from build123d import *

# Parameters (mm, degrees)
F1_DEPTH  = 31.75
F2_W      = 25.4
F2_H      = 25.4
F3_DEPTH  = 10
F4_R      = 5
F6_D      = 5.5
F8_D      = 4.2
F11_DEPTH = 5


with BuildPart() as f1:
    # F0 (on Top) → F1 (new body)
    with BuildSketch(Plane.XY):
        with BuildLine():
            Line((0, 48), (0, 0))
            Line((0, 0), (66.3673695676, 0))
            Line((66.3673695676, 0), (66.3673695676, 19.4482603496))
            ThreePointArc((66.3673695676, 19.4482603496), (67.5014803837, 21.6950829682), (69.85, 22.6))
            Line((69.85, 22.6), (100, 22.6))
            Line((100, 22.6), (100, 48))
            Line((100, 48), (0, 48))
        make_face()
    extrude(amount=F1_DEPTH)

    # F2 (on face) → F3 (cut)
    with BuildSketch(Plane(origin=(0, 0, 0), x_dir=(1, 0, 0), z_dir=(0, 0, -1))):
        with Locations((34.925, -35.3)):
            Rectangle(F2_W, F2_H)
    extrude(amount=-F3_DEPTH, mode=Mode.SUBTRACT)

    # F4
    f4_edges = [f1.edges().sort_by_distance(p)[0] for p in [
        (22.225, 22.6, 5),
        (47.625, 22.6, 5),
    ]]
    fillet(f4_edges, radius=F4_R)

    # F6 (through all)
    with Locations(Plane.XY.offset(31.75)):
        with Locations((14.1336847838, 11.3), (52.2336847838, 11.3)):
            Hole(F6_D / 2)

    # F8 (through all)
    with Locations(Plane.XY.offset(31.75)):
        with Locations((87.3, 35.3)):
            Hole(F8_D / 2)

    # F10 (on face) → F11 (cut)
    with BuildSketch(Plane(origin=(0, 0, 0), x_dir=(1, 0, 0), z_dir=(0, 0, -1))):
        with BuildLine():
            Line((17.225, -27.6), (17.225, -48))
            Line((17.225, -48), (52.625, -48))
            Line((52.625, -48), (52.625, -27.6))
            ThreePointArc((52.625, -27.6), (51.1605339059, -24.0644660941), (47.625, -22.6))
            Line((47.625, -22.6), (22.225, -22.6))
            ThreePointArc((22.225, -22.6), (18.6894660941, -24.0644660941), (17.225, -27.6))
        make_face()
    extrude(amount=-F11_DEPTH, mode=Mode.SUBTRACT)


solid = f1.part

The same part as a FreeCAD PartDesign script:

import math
import FreeCAD as App
import Part
import Sketcher
from FreeCAD import Vector


def edges_at(feature, points):
    """Names of the edges that pass closest to the given points."""
    edges = feature.Shape.Edges
    near = lambda p: min(range(len(edges)), key=lambda i: edges[i].distToShape(Part.Vertex(*p))[0])
    return sorted({f"Edge{near(p) + 1}" for p in points})

doc = App.newDocument("Part")
body = doc.addObject("PartDesign::Body", "Body")

sketch1 = body.newObject("Sketcher::SketchObject", "Sketch")
sketch1.AttachmentSupport = (doc.getObject("XY_Plane"), [""])
sketch1.MapMode = "FlatFace"
sketch1.addGeometry(Part.LineSegment(Vector(0, 48, 0), Vector(0, 0, 0)), False)
sketch1.addGeometry(Part.LineSegment(Vector(0, 0, 0), Vector(66.36737, 0, 0)), False)
sketch1.addGeometry(Part.LineSegment(Vector(66.36737, 0, 0), Vector(66.36737, 19.44826, 0)), False)
sketch1.addGeometry(Part.ArcOfCircle(Part.Circle(Vector(69.85, 19.1, 0), Vector(0, 0, 1), 3.5), math.radians(90), math.radians(174.289451)), False)
sketch1.addGeometry(Part.LineSegment(Vector(69.85, 22.6, 0), Vector(100, 22.6, 0)), False)
sketch1.addGeometry(Part.LineSegment(Vector(100, 22.6, 0), Vector(100, 48, 0)), False)
sketch1.addGeometry(Part.LineSegment(Vector(100, 48, 0), Vector(0, 48, 0)), False)
sketch1.addConstraint(Sketcher.Constraint("Coincident", 0, 2, 1, 1))
sketch1.addConstraint(Sketcher.Constraint("Coincident", 1, 2, 2, 1))
sketch1.addConstraint(Sketcher.Constraint("Coincident", 2, 2, 3, 2))
sketch1.addConstraint(Sketcher.Constraint("Tangent", 3, 1, 4, 1))
sketch1.addConstraint(Sketcher.Constraint("Coincident", 4, 2, 5, 1))
sketch1.addConstraint(Sketcher.Constraint("Coincident", 5, 2, 6, 1))
sketch1.addConstraint(Sketcher.Constraint("Coincident", 6, 2, 0, 1))
sketch1.addConstraint(Sketcher.Constraint("Vertical", 0))
sketch1.addConstraint(Sketcher.Constraint("Horizontal", 1))
sketch1.addConstraint(Sketcher.Constraint("Vertical", 2))
sketch1.addConstraint(Sketcher.Constraint("Horizontal", 4))
sketch1.addConstraint(Sketcher.Constraint("Vertical", 5))
sketch1.addConstraint(Sketcher.Constraint("Horizontal", 6))
sketch1.addConstraint(Sketcher.Constraint("Coincident", 0, 2, -1, 1))
sketch1.addConstraint(Sketcher.Constraint("Radius", 3, 3.5))
sketch1.addConstraint(Sketcher.Constraint("DistanceX", 6, 2, 6, 1, 100.0))
sketch1.addConstraint(Sketcher.Constraint("DistanceY", 0, 2, 0, 1, 48.0))
sketch1.addConstraint(Sketcher.Constraint("DistanceY", 5, 1, 5, 2, 25.4))
sketch1.addConstraint(Sketcher.Constraint("DistanceX", 4, 1, 4, 2, 30.15))
sketch1.addConstraint(Sketcher.Constraint("DistanceX", 1, 1, 1, 2, 66.36737))
pad1 = body.newObject("PartDesign::Pad", "Pad")
pad1.Profile = sketch1
pad1.Length = 31.75

sketch2 = body.newObject("Sketcher::SketchObject", "Sketch001")
sketch2.AttachmentSupport = (doc.getObject("XY_Plane"), [""])
sketch2.MapMode = "FlatFace"
sketch2.addGeometry(Part.LineSegment(Vector(22.225, 22.6, 0), Vector(22.225, 48, 0)), False)
sketch2.addGeometry(Part.LineSegment(Vector(22.225, 48, 0), Vector(47.625, 48, 0)), False)
sketch2.addGeometry(Part.LineSegment(Vector(47.625, 48, 0), Vector(47.625, 22.6, 0)), False)
sketch2.addGeometry(Part.LineSegment(Vector(47.625, 22.6, 0), Vector(22.225, 22.6, 0)), False)
sketch2.addConstraint(Sketcher.Constraint("Coincident", 0, 2, 1, 1))
sketch2.addConstraint(Sketcher.Constraint("Coincident", 1, 2, 2, 1))
sketch2.addConstraint(Sketcher.Constraint("Coincident", 2, 2, 3, 1))
sketch2.addConstraint(Sketcher.Constraint("Coincident", 3, 2, 0, 1))
sketch2.addConstraint(Sketcher.Constraint("Vertical", 0))
sketch2.addConstraint(Sketcher.Constraint("Horizontal", 1))
sketch2.addConstraint(Sketcher.Constraint("Vertical", 2))
sketch2.addConstraint(Sketcher.Constraint("Horizontal", 3))
sketch2.addConstraint(Sketcher.Constraint("Equal", 3, 0))
sketch2.addConstraint(Sketcher.Constraint("DistanceX", 1, 1, 1, 2, 25.4))
sketch2.addConstraint(Sketcher.Constraint("DistanceY", -1, 1, 0, 2, 48.0))
sketch2.addConstraint(Sketcher.Constraint("DistanceX", -1, 1, 0, 2, 22.225))
pocket1 = body.newObject("PartDesign::Pocket", "Pocket")
pocket1.Profile = sketch2
pocket1.Length = 10
pocket1.Reversed = True
doc.recompute()

fillet = body.newObject("PartDesign::Fillet", "Fillet")
fillet.Base = (pocket1, edges_at(pocket1, [(22.225, 22.6, 5), (47.625, 22.6, 5)]))
fillet.Radius = 5

sketch3 = body.newObject("Sketcher::SketchObject", "Sketch002")
sketch3.AttachmentSupport = (doc.getObject("XY_Plane"), [""])
sketch3.MapMode = "FlatFace"
sketch3.AttachmentOffset = App.Placement(Vector(0, 0, 31.75), App.Rotation())
sketch3.addGeometry(Part.Circle(Vector(14.133685, 11.3, 0), Vector(0, 0, 1), 2.75), False)
sketch3.addGeometry(Part.Circle(Vector(52.233685, 11.3, 0), Vector(0, 0, 1), 2.75), False)
sketch3.addConstraint(Sketcher.Constraint("Equal", 0, 1))
sketch3.addConstraint(Sketcher.Constraint("Horizontal", 0, 3, 1, 3))
sketch3.addConstraint(Sketcher.Constraint("Diameter", 0, 5.5))
sketch3.addConstraint(Sketcher.Constraint("DistanceY", -1, 1, 0, 3, 11.3))
sketch3.addConstraint(Sketcher.Constraint("DistanceX", 0, 3, 1, 3, 38.1))
sketch3.addConstraint(Sketcher.Constraint("DistanceX", -1, 1, 0, 3, 14.133685))
doc.recompute()
hole = body.newObject("PartDesign::Hole", "Hole")
hole.Profile = sketch3
hole.ThreadType = "None"
hole.Diameter = 5.5
hole.DepthType = "ThroughAll"

sketch4 = body.newObject("Sketcher::SketchObject", "Sketch003")
sketch4.AttachmentSupport = (doc.getObject("XY_Plane"), [""])
sketch4.MapMode = "FlatFace"
sketch4.AttachmentOffset = App.Placement(Vector(0, 0, 31.75), App.Rotation())
sketch4.addGeometry(Part.Circle(Vector(87.3, 35.3, 0), Vector(0, 0, 1), 2.1), False)
sketch4.addConstraint(Sketcher.Constraint("Diameter", 0, 4.2))
sketch4.addConstraint(Sketcher.Constraint("DistanceX", -1, 1, 0, 3, 87.3))
sketch4.addConstraint(Sketcher.Constraint("DistanceY", -1, 1, 0, 3, 35.3))
doc.recompute()
hole2 = body.newObject("PartDesign::Hole", "Hole001")
hole2.Profile = sketch4
hole2.ThreadType = "None"
hole2.Diameter = 4.2
hole2.DepthType = "ThroughAll"

sketch5 = body.newObject("Sketcher::SketchObject", "Sketch004")
sketch5.AttachmentSupport = (doc.getObject("XY_Plane"), [""])
sketch5.MapMode = "FlatFace"
sketch5.addGeometry(Part.LineSegment(Vector(17.225, 27.6, 0), Vector(17.225, 48, 0)), False)
sketch5.addGeometry(Part.LineSegment(Vector(17.225, 48, 0), Vector(52.625, 48, 0)), False)
sketch5.addGeometry(Part.LineSegment(Vector(52.625, 48, 0), Vector(52.625, 27.6, 0)), False)
sketch5.addGeometry(Part.ArcOfCircle(Part.Circle(Vector(47.625, 27.6, 0), Vector(0, 0, 1), 5), math.radians(-90), math.radians(0)), False)
sketch5.addGeometry(Part.LineSegment(Vector(47.625, 22.6, 0), Vector(22.225, 22.6, 0)), False)
sketch5.addGeometry(Part.ArcOfCircle(Part.Circle(Vector(22.225, 27.6, 0), Vector(0, 0, 1), 5), math.radians(180), math.radians(270)), False)
sketch5.addConstraint(Sketcher.Constraint("Coincident", 0, 2, 1, 1))
sketch5.addConstraint(Sketcher.Constraint("Coincident", 1, 2, 2, 1))
sketch5.addConstraint(Sketcher.Constraint("Tangent", 2, 2, 3, 2))
sketch5.addConstraint(Sketcher.Constraint("Tangent", 3, 1, 4, 1))
sketch5.addConstraint(Sketcher.Constraint("Tangent", 4, 2, 5, 2))
sketch5.addConstraint(Sketcher.Constraint("Tangent", 5, 1, 0, 1))
sketch5.addConstraint(Sketcher.Constraint("Vertical", 0))
sketch5.addConstraint(Sketcher.Constraint("Horizontal", 1))
sketch5.addConstraint(Sketcher.Constraint("Vertical", 2))
sketch5.addConstraint(Sketcher.Constraint("Horizontal", 4))
sketch5.addConstraint(Sketcher.Constraint("Equal", 3, 5))
sketch5.addConstraint(Sketcher.Constraint("Radius", 3, 5.0))
sketch5.addConstraint(Sketcher.Constraint("DistanceX", 1, 1, 1, 2, 35.4))
sketch5.addConstraint(Sketcher.Constraint("DistanceY", 0, 1, 0, 2, 20.4))
sketch5.addConstraint(Sketcher.Constraint("DistanceY", -1, 1, 0, 2, 48.0))
sketch5.addConstraint(Sketcher.Constraint("DistanceX", -1, 1, 3, 3, 47.625))
pocket2 = body.newObject("PartDesign::Pocket", "Pocket001")
pocket2.Profile = sketch5
pocket2.Length = 5
pocket2.Reversed = True

doc.recompute()
